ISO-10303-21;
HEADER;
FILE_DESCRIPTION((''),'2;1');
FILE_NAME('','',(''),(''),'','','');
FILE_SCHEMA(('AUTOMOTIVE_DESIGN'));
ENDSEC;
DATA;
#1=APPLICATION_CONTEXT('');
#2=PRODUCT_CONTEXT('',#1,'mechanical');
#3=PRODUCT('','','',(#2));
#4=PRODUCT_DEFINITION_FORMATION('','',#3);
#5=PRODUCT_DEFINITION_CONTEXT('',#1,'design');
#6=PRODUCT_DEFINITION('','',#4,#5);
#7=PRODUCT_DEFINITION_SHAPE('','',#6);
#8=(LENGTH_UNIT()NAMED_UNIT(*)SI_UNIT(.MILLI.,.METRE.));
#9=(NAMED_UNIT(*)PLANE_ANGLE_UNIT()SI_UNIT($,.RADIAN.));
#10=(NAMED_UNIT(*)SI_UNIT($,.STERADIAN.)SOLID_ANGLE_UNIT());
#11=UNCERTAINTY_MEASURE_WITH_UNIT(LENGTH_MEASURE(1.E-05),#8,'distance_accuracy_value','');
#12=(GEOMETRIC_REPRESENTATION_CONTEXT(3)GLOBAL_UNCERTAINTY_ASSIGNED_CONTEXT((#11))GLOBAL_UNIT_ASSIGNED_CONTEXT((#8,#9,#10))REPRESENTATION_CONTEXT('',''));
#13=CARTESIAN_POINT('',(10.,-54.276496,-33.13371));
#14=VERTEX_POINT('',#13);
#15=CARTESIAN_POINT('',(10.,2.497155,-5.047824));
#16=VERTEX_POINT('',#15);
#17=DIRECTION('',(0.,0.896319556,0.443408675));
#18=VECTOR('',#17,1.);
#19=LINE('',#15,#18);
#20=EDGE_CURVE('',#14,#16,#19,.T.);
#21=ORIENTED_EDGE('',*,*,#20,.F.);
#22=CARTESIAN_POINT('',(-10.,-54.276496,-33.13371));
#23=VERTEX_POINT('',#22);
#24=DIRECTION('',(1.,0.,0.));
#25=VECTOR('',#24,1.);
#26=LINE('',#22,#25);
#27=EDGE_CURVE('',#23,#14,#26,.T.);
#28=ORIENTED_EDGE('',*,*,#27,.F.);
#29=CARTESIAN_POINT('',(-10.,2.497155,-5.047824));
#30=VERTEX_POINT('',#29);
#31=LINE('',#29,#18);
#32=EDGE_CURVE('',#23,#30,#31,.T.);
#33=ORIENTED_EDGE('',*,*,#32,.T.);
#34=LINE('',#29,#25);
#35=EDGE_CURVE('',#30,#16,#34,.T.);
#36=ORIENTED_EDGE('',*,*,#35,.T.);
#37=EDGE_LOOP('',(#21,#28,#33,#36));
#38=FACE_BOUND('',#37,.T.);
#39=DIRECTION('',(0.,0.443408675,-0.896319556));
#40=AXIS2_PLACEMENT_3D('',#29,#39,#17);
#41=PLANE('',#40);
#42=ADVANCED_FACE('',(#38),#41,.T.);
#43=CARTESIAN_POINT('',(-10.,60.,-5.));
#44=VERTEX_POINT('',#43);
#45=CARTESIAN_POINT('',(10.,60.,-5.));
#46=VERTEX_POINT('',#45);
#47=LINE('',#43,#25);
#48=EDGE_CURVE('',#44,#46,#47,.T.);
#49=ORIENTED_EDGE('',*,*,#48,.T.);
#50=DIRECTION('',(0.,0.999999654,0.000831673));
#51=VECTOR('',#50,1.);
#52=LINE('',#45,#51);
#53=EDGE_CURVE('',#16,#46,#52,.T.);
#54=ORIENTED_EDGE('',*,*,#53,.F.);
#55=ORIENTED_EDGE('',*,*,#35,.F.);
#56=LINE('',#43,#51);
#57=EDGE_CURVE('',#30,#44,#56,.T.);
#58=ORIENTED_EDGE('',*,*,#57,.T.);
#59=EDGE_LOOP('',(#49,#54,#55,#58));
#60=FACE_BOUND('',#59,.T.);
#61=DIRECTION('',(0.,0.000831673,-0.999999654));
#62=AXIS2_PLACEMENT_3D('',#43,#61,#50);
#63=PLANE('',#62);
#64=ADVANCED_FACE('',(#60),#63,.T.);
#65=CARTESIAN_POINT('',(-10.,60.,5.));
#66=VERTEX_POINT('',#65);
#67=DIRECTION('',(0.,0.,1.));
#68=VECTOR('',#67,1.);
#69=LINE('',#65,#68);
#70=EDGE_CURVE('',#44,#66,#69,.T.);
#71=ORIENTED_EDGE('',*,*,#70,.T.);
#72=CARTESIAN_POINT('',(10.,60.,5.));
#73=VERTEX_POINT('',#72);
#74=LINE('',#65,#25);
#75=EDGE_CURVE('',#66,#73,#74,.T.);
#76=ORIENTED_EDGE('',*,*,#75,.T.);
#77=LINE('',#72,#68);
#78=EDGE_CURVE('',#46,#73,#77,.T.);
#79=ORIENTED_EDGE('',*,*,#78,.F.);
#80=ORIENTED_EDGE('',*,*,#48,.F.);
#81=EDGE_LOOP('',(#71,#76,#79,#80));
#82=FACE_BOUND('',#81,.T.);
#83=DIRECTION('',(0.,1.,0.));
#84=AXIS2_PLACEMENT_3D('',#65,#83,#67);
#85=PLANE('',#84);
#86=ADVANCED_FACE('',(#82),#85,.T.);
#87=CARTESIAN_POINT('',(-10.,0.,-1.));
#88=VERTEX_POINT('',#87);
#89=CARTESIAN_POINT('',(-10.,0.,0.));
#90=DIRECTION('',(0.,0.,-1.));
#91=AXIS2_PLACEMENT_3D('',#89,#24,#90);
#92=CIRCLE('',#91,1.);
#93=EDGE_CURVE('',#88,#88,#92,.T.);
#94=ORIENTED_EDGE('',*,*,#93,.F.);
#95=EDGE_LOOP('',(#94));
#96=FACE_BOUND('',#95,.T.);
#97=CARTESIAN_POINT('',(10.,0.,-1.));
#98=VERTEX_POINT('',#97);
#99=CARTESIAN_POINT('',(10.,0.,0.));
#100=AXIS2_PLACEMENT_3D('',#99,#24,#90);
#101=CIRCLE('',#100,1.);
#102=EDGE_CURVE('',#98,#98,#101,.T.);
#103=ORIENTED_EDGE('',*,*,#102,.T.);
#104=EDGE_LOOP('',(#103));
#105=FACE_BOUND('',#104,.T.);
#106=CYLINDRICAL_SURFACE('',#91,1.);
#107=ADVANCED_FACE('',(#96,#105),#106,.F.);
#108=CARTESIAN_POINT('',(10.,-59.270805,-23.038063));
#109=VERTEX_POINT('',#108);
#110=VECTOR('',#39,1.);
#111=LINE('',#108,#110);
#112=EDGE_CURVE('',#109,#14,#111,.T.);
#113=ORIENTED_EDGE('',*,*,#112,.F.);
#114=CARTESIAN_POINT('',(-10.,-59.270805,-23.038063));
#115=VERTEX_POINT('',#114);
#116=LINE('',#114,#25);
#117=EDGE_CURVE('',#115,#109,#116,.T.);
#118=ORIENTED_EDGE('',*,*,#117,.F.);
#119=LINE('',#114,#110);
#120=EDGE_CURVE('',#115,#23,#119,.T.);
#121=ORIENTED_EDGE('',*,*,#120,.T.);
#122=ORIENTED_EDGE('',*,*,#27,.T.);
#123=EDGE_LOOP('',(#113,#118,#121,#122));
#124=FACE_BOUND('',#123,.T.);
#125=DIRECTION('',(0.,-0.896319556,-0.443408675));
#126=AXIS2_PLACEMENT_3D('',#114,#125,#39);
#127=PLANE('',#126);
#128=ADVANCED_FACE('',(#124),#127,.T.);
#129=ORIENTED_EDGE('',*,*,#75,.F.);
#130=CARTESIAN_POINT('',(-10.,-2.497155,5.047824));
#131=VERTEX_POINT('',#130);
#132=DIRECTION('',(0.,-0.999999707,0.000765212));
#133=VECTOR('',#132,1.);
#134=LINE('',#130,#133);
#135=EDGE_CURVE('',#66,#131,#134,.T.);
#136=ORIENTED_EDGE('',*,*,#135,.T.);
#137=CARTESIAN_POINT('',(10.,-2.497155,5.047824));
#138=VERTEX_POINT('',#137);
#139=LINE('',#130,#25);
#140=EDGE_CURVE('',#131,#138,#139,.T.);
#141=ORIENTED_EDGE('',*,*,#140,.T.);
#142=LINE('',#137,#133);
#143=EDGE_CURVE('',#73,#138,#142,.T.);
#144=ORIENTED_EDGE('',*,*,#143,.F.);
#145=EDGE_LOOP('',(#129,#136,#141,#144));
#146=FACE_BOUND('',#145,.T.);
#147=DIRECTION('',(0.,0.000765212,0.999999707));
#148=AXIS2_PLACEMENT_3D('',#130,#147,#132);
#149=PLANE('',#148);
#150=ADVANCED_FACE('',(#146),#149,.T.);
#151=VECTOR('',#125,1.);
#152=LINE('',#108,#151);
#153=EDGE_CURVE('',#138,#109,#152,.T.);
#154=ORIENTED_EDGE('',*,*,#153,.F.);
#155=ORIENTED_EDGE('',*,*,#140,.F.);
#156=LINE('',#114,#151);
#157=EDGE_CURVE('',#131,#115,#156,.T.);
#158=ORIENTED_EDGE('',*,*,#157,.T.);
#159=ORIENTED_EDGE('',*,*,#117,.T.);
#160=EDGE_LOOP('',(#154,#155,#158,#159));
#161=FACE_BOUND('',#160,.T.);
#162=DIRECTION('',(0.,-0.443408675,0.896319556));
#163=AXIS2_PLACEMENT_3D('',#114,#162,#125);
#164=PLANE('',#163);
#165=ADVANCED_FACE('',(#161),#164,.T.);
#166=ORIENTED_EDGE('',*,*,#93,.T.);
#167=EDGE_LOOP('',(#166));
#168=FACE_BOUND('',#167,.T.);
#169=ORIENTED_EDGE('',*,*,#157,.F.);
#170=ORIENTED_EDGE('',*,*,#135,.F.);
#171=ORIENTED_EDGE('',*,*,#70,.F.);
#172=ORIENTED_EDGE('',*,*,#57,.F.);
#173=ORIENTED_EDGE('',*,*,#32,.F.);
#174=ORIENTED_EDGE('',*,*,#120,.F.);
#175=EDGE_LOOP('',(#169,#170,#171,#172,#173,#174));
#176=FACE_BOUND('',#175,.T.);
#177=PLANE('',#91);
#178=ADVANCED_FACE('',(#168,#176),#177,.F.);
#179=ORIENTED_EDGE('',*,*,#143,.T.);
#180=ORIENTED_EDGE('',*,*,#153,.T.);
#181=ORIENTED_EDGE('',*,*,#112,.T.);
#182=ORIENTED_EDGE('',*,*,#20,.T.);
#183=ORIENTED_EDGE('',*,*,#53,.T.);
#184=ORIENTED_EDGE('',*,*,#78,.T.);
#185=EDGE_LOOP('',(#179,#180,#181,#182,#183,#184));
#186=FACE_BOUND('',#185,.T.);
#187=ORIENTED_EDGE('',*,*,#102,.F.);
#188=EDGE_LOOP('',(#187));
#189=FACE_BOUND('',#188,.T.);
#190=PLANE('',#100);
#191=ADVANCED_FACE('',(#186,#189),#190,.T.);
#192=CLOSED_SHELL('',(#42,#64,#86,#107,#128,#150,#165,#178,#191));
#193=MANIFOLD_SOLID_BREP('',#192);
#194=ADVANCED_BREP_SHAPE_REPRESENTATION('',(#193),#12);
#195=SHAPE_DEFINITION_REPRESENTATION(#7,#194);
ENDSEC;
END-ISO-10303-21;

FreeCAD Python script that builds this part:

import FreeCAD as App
import Part
import Sketcher

doc = App.newDocument("Part")
body = doc.addObject("PartDesign::Body", "Body")

sketch1 = body.newObject("Sketcher::SketchObject", "Sketch")
sketch1.AttachmentSupport = (doc.getObject("YZ_Plane"), [""])
sketch1.MapMode = "FlatFace"
sketch1.addGeometry(Part.LineSegment(App.Vector(-54.3, -33.1, 0), App.Vector(2.5, -5, 0)), False)
sketch1.addGeometry(Part.LineSegment(App.Vector(2.5, -5, 0), App.Vector(60, -5, 0)), False)
sketch1.addGeometry(Part.LineSegment(App.Vector(60, -5, 0), App.Vector(60, 5, 0)), False)
sketch1.addGeometry(Part.LineSegment(App.Vector(60, 5, 0), App.Vector(-2.5, 5, 0)), False)
sketch1.addGeometry(Part.LineSegment(App.Vector(-2.5, 5, 0), App.Vector(-59.3, -23, 0)), False)
sketch1.addGeometry(Part.LineSegment(App.Vector(-59.3, -23, 0), App.Vector(-54.3, -33.1, 0)), False)
sketch1.addGeometry(Part.Circle(App.Vector(0, 0, 0), App.Vector(0, 0, 1), 1), False)
sketch1.addConstraint(Sketcher.Constraint("Coincident", 0, 2, 1, 1))
sketch1.addConstraint(Sketcher.Constraint("Coincident", 1, 2, 2, 1))
sketch1.addConstraint(Sketcher.Constraint("Coincident", 2, 2, 3, 1))
sketch1.addConstraint(Sketcher.Constraint("Coincident", 3, 2, 4, 1))
sketch1.addConstraint(Sketcher.Constraint("Coincident", 4, 2, 5, 1))
sketch1.addConstraint(Sketcher.Constraint("Coincident", 5, 2, 0, 1))
sketch1.addConstraint(Sketcher.Constraint("Vertical", 2))
sketch1.addConstraint(Sketcher.Constraint("Coincident", 6, 3, -1, 1))
sketch1.addConstraint(Sketcher.Constraint("Symmetric", 0, 2, 3, 2, -1, 1))
sketch1.addConstraint(Sketcher.Constraint("Parallel", 0, 4))
sketch1.addConstraint(Sketcher.Constraint("Perpendicular", 4, 5))
sketch1.addConstraint(Sketcher.Constraint("Equal", 0, 4))
sketch1.addConstraint(Sketcher.Constraint("Diameter", 6, 2.0))
sketch1.addConstraint(Sketcher.Constraint("DistanceY", 2, 1, 2, 2, 10.0))
sketch1.addConstraint(Sketcher.Constraint("DistanceX", -1, 1, 1, 2, 60.0))
sketch1.addConstraint(Sketcher.Constraint("DistanceY", 1, 2, -1, 1, 5.0))
sketch1.addConstraint(Sketcher.Constraint("Distance", 0, 63.340859))
sketch1.addConstraint(Sketcher.Constraint("DistanceY", 5, 2, -1, 1, 33.13371))
sketch1.addConstraint(Sketcher.Constraint("DistanceX", 3, 2, 0, 2, 4.99431))
pad1 = body.newObject("PartDesign::Pad", "Pad")
pad1.Profile = sketch1
pad1.Type = "TwoLengths"
pad1.Length = 10
pad1.Length2 = 10

doc.recompute()
